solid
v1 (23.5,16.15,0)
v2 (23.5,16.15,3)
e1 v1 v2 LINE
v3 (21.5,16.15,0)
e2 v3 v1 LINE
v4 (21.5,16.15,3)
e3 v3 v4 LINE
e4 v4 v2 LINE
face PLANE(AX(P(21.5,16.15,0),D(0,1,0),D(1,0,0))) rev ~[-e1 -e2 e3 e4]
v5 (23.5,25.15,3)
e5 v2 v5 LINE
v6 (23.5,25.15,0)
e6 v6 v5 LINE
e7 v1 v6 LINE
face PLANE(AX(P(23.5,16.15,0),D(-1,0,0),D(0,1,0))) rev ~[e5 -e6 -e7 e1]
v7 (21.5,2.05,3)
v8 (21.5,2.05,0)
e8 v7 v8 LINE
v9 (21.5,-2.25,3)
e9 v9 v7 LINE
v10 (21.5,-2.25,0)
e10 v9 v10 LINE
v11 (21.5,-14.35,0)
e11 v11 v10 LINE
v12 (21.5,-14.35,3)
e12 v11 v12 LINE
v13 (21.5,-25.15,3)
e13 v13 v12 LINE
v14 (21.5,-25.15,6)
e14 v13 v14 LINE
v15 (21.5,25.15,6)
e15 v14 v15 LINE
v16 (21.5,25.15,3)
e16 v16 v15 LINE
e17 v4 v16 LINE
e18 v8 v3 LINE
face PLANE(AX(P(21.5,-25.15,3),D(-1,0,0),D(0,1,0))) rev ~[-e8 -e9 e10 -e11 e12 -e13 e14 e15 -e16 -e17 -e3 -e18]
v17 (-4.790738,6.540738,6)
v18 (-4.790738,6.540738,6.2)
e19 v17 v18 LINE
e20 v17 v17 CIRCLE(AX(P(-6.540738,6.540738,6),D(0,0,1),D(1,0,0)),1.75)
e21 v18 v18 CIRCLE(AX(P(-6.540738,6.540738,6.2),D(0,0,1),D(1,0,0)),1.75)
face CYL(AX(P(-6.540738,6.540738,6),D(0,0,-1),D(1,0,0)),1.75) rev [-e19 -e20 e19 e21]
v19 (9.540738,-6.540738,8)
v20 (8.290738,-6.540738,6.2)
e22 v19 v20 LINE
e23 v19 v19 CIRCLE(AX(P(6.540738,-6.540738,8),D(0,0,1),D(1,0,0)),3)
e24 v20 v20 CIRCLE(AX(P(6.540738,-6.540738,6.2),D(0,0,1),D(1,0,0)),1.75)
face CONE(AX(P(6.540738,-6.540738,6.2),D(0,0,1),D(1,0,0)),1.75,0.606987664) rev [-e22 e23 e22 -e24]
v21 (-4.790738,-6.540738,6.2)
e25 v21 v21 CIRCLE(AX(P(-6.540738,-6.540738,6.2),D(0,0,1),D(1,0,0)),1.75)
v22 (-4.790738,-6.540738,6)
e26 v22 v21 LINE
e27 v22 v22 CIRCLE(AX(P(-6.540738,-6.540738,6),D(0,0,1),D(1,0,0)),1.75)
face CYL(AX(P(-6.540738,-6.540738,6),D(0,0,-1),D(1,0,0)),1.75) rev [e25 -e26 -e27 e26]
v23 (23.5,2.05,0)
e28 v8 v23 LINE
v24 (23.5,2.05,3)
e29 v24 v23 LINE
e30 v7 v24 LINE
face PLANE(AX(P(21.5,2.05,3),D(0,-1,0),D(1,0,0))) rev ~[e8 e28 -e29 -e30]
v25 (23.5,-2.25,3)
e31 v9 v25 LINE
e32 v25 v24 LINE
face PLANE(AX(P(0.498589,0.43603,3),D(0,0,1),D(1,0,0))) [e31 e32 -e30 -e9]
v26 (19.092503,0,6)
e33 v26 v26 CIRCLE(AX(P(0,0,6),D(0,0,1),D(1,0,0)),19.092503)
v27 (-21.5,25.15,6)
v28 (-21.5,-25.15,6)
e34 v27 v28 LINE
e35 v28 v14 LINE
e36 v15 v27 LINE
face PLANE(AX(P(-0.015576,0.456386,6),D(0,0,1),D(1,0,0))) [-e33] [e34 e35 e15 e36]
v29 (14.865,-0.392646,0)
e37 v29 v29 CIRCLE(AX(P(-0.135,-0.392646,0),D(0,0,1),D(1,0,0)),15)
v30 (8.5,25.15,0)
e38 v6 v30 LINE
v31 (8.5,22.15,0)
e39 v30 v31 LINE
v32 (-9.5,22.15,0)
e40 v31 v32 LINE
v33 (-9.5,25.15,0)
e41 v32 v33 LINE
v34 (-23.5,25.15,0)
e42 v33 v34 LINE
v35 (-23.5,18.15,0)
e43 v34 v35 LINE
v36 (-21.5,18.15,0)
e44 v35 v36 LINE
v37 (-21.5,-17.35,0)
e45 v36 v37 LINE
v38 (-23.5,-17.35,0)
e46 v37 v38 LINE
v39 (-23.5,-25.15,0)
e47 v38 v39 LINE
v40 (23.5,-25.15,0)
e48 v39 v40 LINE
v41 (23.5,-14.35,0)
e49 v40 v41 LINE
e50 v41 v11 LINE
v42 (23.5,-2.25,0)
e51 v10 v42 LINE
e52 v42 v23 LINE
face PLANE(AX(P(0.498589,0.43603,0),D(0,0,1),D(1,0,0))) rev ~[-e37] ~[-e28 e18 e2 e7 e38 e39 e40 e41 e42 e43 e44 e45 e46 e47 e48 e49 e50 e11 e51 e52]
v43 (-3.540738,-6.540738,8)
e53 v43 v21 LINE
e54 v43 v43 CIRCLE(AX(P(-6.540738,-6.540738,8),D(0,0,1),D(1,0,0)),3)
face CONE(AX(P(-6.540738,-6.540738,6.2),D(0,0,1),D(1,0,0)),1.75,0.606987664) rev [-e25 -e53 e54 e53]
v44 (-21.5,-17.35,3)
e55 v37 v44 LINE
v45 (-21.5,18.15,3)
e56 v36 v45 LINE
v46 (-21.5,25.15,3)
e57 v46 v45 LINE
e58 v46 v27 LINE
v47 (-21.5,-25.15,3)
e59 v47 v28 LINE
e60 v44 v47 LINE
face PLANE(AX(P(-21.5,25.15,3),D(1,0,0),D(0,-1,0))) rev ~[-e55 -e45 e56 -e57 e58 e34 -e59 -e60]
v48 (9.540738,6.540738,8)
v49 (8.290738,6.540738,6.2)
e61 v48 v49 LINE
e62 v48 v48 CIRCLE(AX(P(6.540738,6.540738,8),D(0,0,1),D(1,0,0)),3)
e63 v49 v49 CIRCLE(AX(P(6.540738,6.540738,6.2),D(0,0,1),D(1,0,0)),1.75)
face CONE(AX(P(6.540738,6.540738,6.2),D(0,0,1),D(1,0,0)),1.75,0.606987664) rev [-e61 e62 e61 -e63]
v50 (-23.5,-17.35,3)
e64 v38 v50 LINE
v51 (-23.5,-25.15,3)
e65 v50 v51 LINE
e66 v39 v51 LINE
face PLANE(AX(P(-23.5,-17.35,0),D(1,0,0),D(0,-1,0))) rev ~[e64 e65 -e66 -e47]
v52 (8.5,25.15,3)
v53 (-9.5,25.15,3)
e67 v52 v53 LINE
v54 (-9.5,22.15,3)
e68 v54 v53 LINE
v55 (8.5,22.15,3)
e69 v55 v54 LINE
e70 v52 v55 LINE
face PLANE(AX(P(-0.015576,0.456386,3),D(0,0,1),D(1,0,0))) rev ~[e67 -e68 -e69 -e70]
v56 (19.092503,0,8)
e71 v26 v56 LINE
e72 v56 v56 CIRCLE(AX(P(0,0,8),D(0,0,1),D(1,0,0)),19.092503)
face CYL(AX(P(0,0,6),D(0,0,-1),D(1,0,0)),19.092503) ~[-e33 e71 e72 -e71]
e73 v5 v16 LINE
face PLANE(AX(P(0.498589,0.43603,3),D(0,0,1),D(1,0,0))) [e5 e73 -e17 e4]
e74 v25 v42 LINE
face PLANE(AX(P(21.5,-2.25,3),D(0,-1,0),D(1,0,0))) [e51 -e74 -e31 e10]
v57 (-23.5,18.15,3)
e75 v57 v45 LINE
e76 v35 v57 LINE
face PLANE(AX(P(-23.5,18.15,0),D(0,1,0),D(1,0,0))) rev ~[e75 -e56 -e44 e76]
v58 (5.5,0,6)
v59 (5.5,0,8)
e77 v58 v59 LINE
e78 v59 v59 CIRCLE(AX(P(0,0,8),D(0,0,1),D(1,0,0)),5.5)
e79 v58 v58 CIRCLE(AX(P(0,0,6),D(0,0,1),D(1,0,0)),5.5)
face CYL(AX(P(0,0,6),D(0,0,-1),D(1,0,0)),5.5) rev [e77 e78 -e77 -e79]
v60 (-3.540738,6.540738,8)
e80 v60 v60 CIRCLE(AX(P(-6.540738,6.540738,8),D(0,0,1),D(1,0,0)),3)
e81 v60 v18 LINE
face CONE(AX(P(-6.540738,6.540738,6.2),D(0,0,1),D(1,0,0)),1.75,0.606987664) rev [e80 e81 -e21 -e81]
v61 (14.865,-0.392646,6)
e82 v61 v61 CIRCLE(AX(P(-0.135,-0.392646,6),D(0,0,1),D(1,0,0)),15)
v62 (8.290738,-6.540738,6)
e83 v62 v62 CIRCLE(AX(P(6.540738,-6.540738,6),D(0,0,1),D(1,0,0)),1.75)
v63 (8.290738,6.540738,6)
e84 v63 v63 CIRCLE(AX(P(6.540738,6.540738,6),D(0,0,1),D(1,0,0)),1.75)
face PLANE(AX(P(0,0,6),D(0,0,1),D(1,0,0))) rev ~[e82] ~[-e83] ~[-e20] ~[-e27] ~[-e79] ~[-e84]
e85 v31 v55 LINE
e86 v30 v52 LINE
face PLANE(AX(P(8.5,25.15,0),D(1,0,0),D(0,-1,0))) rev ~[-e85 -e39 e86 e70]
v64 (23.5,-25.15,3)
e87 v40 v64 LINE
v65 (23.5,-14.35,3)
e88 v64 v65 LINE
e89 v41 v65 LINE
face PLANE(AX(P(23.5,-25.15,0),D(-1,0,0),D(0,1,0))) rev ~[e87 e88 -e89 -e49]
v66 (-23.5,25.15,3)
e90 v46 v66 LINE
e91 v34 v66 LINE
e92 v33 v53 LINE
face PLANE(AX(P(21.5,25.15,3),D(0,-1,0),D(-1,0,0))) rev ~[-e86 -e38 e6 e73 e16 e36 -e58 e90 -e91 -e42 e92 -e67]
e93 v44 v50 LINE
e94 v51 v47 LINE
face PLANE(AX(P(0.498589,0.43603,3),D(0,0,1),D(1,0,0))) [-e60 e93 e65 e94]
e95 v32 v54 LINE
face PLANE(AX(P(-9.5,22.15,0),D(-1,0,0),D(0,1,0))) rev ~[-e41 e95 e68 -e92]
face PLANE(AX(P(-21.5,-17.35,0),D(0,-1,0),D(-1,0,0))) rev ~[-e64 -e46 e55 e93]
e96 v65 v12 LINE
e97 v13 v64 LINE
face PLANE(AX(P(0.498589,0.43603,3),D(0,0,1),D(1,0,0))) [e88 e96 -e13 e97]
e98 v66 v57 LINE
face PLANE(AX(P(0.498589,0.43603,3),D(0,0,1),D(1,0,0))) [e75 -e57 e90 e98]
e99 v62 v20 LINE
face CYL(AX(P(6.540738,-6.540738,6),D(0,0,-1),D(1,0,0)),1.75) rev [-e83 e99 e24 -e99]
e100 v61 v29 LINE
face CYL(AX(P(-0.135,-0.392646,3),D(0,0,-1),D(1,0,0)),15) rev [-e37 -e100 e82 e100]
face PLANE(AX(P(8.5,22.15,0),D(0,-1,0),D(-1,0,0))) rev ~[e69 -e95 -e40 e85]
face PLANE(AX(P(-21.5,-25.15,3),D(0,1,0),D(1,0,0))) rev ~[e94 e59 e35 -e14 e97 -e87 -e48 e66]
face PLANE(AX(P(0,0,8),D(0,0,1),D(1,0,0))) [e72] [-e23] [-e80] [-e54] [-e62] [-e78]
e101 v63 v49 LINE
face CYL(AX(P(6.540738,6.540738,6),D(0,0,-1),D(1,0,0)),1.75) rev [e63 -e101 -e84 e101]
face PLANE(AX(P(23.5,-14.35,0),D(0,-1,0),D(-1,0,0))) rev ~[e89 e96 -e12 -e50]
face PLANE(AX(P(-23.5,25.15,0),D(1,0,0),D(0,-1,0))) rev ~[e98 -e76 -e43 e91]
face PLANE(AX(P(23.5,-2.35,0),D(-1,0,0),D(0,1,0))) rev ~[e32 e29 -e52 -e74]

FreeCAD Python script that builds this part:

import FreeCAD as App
import Part
import Sketcher


def edges_at(feature, points):
    """Names of the edges that pass closest to the given points."""
    edges = feature.Shape.Edges
    near = lambda p: min(range(len(edges)), key=lambda i: edges[i].distToShape(Part.Vertex(*p))[0])
    return sorted({f"Edge{near(p) + 1}" for p in points})


def add_polygon(sketch, points):
    """Adds a closed chain of lines whose ends are joined by coincident constraints."""
    first, n = sketch.GeometryCount, len(points)
    for a, b in zip(points, points[1:] + points[:1]):
        sketch.addGeometry(Part.LineSegment(App.Vector(*a, 0), App.Vector(*b, 0)), False)
    for i in range(n):
        sketch.addConstraint(Sketcher.Constraint("Coincident", first + i, 2, first + (i + 1) % n, 1))

doc = App.newDocument("Part")
body = doc.addObject("PartDesign::Body", "Body")

sketch1 = doc.addObject("Sketcher::SketchObject", "Sketch")
body.addObject(sketch1)
sketch1.AttachmentSupport = (doc.XY_Plane, [""])
sketch1.MapMode = "FlatFace"
add_polygon(sketch1, [(-9.5, 25.1), (-23.5, 25.1), (-23.5, 18.1), (-21.5, 18.1), (-21.5, -17.4), (-23.5, -17.4), (-23.5, -25.1), (23.5, -25.1), (23.5, -14.3), (21.5, -14.3), (21.5, -2.4), (23.5, -2.4), (23.5, 2.1), (21.5, 2.1), (21.5, 16.1), (23.5, 16.1), (23.5, 25.1), (8.5, 25.1), (8.5, 22.1), (-9.5, 22.1)])
sketch1.addGeometry(Part.Circle(App.Vector(-0.1, -0.4, 0), App.Vector(0, 0, 1), 15), False)
sketch1.addConstraint(Sketcher.Constraint("Horizontal", 0))
sketch1.addConstraint(Sketcher.Constraint("Vertical", 1))
sketch1.addConstraint(Sketcher.Constraint("Horizontal", 2))
sketch1.addConstraint(Sketcher.Constraint("Vertical", 3))
sketch1.addConstraint(Sketcher.Constraint("Horizontal", 4))
sketch1.addConstraint(Sketcher.Constraint("Vertical", 5))
sketch1.addConstraint(Sketcher.Constraint("Horizontal", 6))
sketch1.addConstraint(Sketcher.Constraint("Vertical", 7))
sketch1.addConstraint(Sketcher.Constraint("Horizontal", 8))
sketch1.addConstraint(Sketcher.Constraint("Vertical", 9))
sketch1.addConstraint(Sketcher.Constraint("Horizontal", 10))
sketch1.addConstraint(Sketcher.Constraint("Vertical", 11))
sketch1.addConstraint(Sketcher.Constraint("Horizontal", 12))
sketch1.addConstraint(Sketcher.Constraint("Vertical", 13))
sketch1.addConstraint(Sketcher.Constraint("Horizontal", 14))
sketch1.addConstraint(Sketcher.Constraint("Vertical", 15))
sketch1.addConstraint(Sketcher.Constraint("Horizontal", 16))
sketch1.addConstraint(Sketcher.Constraint("Vertical", 17))
sketch1.addConstraint(Sketcher.Constraint("Horizontal", 18))
sketch1.addConstraint(Sketcher.Constraint("Vertical", 19))
sketch1.addConstraint(Sketcher.Constraint("Symmetric", 0, 2, 6, 2, -1, 1))
sketch1.addConstraint(Sketcher.Constraint("Symmetric", 5, 2, 15, 2, -1, 1))
sketch1.addConstraint(Sketcher.Constraint("Vertical", 1, 2, 4, 2))
sketch1.addConstraint(Sketcher.Constraint("Vertical", 7, 2, 10, 2))
sketch1.addConstraint(Sketcher.Constraint("Vertical", 9, 2, 12, 2))
sketch1.addConstraint(Sketcher.Constraint("Equal", 4, 8))
sketch1.addConstraint(Sketcher.Constraint("Equal", 0, 13))
sketch1.addConstraint(Sketcher.Constraint("Diameter", 20, 30.0))
sketch1.addConstraint(Sketcher.Constraint("DistanceX", 0, 2, 0, 1, 14.0))
sketch1.addConstraint(Sketcher.Constraint("DistanceX", 2, 1, 2, 2, 2.0))
sketch1.addConstraint(Sketcher.Constraint("DistanceX", 6, 1, 6, 2, 47.0))
sketch1.addConstraint(Sketcher.Constraint("DistanceX", 16, 2, 16, 1, 15.0))
sketch1.addConstraint(Sketcher.Constraint("DistanceY", 1, 2, 1, 1, 7.0))
sketch1.addConstraint(Sketcher.Constraint("DistanceY", 9, 1, 9, 2, 12.0))
sketch1.addConstraint(Sketcher.Constraint("DistanceY", 15, 1, 15, 2, 9.0))
sketch1.addConstraint(Sketcher.Constraint("DistanceY", 17, 2, 17, 1, 3.0))
sketch1.addConstraint(Sketcher.Constraint("DistanceY", 3, 2, 3, 1, 35.5))
sketch1.addConstraint(Sketcher.Constraint("DistanceY", 5, 2, 5, 1, 7.8))
sketch1.addConstraint(Sketcher.Constraint("DistanceY", 7, 1, 7, 2, 10.8))
sketch1.addConstraint(Sketcher.Constraint("DistanceX", 20, 3, -1, 1, 0.135))
sketch1.addConstraint(Sketcher.Constraint("DistanceY", 20, 3, -1, 1, 0.392646))
pad1 = doc.addObject("PartDesign::Pad", "Pad")
body.addObject(pad1)
pad1.Profile = sketch1
pad1.Length = 3

sketch2 = doc.addObject("Sketcher::SketchObject", "Sketch001")
body.addObject(sketch2)
sketch2.AttachmentSupport = (doc.XY_Plane, [""])
sketch2.MapMode = "FlatFace"
sketch2.AttachmentOffset = App.Placement(App.Vector(0, 0, 3), App.Rotation())
add_polygon(sketch2, [(-22, 25), (-22, -25), (22, -25), (22, 25)])
sketch2.addGeometry(Part.Circle(App.Vector(0, 0, 0), App.Vector(0, 0, 1), 15), False)
sketch2.addConstraint(Sketcher.Constraint("Vertical", 0))
sketch2.addConstraint(Sketcher.Constraint("Horizontal", 1))
sketch2.addConstraint(Sketcher.Constraint("Vertical", 2))
sketch2.addConstraint(Sketcher.Constraint("Horizontal", 3))
sketch2.addConstraint(Sketcher.Constraint("Symmetric", 0, 2, 2, 2, -1, 1))
sketch2.addConstraint(Sketcher.Constraint("Diameter", 4, 30.0))
sketch2.addConstraint(Sketcher.Constraint("DistanceX", 1, 1, 1, 2, 43.0))
sketch2.addConstraint(Sketcher.Constraint("DistanceY", 0, 2, 0, 1, 50.3))
sketch2.addConstraint(Sketcher.Constraint("DistanceX", 4, 3, -1, 1, 0.135))
sketch2.addConstraint(Sketcher.Constraint("DistanceY", 4, 3, -1, 1, 0.392646))
pad2 = doc.addObject("PartDesign::Pad", "Pad001")
body.addObject(pad2)
pad2.Profile = sketch2
pad2.Length = 3

sketch3 = doc.addObject("Sketcher::SketchObject", "Sketch002")
body.addObject(sketch3)
sketch3.AttachmentSupport = (doc.XY_Plane, [""])
sketch3.MapMode = "FlatFace"
sketch3.AttachmentOffset = App.Placement(App.Vector(0, 0, 6), App.Rotation())
sketch3.addGeometry(Part.Circle(App.Vector(0, 0, 0), App.Vector(0, 0, 1), 19.1), False)
sketch3.addGeometry(Part.Circle(App.Vector(-6.5, -6.5, 0), App.Vector(0, 0, 1), 1.8), False)
sketch3.addGeometry(Part.Circle(App.Vector(6.5, -6.5, 0), App.Vector(0, 0, 1), 1.8), False)
sketch3.addGeometry(Part.Circle(App.Vector(-6.5, 6.5, 0), App.Vector(0, 0, 1), 1.8), False)
sketch3.addGeometry(Part.Circle(App.Vector(0, 0, 0), App.Vector(0, 0, 1), 5.5), False)
sketch3.addGeometry(Part.Circle(App.Vector(6.5, 6.5, 0), App.Vector(0, 0, 1), 1.8), False)
sketch3.addConstraint(Sketcher.Constraint("Coincident", 0, 3, -1, 1))
sketch3.addConstraint(Sketcher.Constraint("Coincident", 4, 3, -1, 1))
sketch3.addConstraint(Sketcher.Constraint("Equal", 1, 2))
sketch3.addConstraint(Sketcher.Constraint("Equal", 2, 3))
sketch3.addConstraint(Sketcher.Constraint("Equal", 3, 5))
sketch3.addConstraint(Sketcher.Constraint("Symmetric", 2, 3, 3, 3, -1, 1))
sketch3.addConstraint(Sketcher.Constraint("Symmetric", 1, 3, 5, 3, -1, 1))
sketch3.addConstraint(Sketcher.Constraint("Symmetric", 1, 3, 2, 3, -2))
sketch3.addConstraint(Sketcher.Constraint("Diameter", 4, 11.0))
sketch3.addConstraint(Sketcher.Constraint("Diameter", 1, 3.5))
sketch3.addConstraint(Sketcher.Constraint("Diameter", 0, 38.185006))
sketch3.addConstraint(Sketcher.Constraint("DistanceX", 1, 3, -1, 1, 6.540738))
sketch3.addConstraint(Sketcher.Constraint("DistanceY", 1, 3, -1, 1, 6.540738))
pad3 = doc.addObject("PartDesign::Pad", "Pad002")
body.addObject(pad3)
pad3.Profile = sketch3
pad3.Length = 2
doc.recompute()

chamfer = doc.addObject("PartDesign::Chamfer", "Chamfer")
body.addObject(chamfer)
chamfer.Base = (pad3, edges_at(pad3, [
    (-8.291, 6.541, 8),
    (4.791, 6.541, 8),
    (4.791, -6.541, 8),
    (-8.291, -6.541, 8),
]))
chamfer.ChamferType = "Two distances"
chamfer.Size = 1.25
chamfer.Size2 = 1.8

sketch4 = doc.addObject("Sketcher::SketchObject", "Sketch003")
body.addObject(sketch4)
sketch4.AttachmentSupport = (doc.XY_Plane, [""])
sketch4.MapMode = "FlatFace"
sketch4.AttachmentOffset = App.Placement(App.Vector(0, 0, 3), App.Rotation())
add_polygon(sketch4, [(21.5, 2.15), (21.5, 2.05), (23.5, 2.05), (23.5, 2.15)])
add_polygon(sketch4, [(21.5, -2.25), (21.5, -2.35), (23.5, -2.35), (23.5, -2.25)])
sketch4.addConstraint(Sketcher.Constraint("Vertical", 0))
sketch4.addConstraint(Sketcher.Constraint("Horizontal", 1))
sketch4.addConstraint(Sketcher.Constraint("Vertical", 2))
sketch4.addConstraint(Sketcher.Constraint("Horizontal", 3))
sketch4.addConstraint(Sketcher.Constraint("Vertical", 4))
sketch4.addConstraint(Sketcher.Constraint("Horizontal", 5))
sketch4.addConstraint(Sketcher.Constraint("Vertical", 6))
sketch4.addConstraint(Sketcher.Constraint("Horizontal", 7))
sketch4.addConstraint(Sketcher.Constraint("Vertical", 3, 2, 4, 2))
sketch4.addConstraint(Sketcher.Constraint("Vertical", 2, 2, 5, 2))
sketch4.addConstraint(Sketcher.Constraint("Equal", 2, 4))
sketch4.addConstraint(Sketcher.Constraint("DistanceX", 1, 1, 1, 2, 2.0))
sketch4.addConstraint(Sketcher.Constraint("DistanceY", 0, 2, 0, 1, 0.1))
sketch4.addConstraint(Sketcher.Constraint("DistanceX", -1, 1, 0, 2, 21.5))
sketch4.addConstraint(Sketcher.Constraint("DistanceY", 4, 2, 0, 2, 4.4))
sketch4.addConstraint(Sketcher.Constraint("DistanceY", -1, 1, 0, 2, 2.05))
pocket1 = doc.addObject("PartDesign::Pocket", "Pocket")
body.addObject(pocket1)
pocket1.Profile = sketch4
pocket1.Type = "ThroughAll"

doc.recompute()
